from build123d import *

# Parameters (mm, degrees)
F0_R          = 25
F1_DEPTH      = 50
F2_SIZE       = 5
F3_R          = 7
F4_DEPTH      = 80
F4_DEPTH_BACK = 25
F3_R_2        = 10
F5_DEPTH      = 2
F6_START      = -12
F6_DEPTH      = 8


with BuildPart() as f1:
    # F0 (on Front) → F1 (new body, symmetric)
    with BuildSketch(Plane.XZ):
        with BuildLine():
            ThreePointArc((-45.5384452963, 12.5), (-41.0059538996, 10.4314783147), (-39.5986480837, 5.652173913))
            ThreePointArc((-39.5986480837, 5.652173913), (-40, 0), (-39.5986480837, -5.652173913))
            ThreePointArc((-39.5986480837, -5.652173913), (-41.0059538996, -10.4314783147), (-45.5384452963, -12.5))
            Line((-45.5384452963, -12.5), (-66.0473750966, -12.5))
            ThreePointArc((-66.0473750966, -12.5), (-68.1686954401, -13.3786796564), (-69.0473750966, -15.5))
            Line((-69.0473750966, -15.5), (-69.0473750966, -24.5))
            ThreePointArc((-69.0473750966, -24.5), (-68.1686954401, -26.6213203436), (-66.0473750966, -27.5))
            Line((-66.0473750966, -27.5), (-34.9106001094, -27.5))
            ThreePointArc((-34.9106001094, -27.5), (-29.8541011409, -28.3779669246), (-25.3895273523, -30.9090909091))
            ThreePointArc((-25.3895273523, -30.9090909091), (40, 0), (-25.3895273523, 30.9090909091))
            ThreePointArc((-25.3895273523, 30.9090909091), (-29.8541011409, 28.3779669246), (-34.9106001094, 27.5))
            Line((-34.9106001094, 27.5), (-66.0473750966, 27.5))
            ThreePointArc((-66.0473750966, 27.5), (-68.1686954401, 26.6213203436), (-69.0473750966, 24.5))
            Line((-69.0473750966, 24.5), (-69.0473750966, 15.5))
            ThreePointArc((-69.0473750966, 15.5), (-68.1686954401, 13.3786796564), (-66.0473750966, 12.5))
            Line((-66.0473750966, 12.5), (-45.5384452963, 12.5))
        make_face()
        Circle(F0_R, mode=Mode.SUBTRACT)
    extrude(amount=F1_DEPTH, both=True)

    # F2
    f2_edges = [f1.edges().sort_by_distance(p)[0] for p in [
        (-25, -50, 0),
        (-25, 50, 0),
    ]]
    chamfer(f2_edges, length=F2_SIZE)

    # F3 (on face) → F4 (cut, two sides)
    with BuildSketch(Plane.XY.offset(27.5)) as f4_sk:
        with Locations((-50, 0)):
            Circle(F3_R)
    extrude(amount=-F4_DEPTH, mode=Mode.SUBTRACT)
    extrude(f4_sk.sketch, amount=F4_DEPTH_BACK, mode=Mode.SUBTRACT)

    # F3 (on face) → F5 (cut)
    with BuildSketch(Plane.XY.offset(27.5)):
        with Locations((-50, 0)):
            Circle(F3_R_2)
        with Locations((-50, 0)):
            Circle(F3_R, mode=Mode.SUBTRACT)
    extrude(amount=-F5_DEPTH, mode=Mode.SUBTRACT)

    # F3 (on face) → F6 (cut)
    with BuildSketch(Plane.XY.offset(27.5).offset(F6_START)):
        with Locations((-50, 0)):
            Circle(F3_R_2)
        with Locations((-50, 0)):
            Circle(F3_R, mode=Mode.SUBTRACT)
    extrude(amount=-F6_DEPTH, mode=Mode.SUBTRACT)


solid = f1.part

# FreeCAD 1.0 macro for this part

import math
import FreeCAD as App
import Part
import Sketcher
Q = App.Units.Quantity


def edges_at(feature, points):
    """Names of the edges that pass closest to the given points."""
    edges = feature.Shape.Edges
    near = lambda p: min(range(len(edges)), key=lambda i: edges[i].distToShape(Part.Vertex(*p))[0])
    return sorted({f"Edge{near(p) + 1}" for p in points})

doc = App.newDocument("Part")
body = doc.addObject("PartDesign::Body", "Body")

# Sketch on XZ plane
sketch1 = doc.addObject("Sketcher::SketchObject", "Sketch")
body.addObject(sketch1)
sketch1.AttachmentSupport = (doc.XZ_Plane, [""])
sketch1.MapMode = "FlatFace"
sketch1.addGeometry(Part.ArcOfCircle(Part.Circle(App.Vector(-45.5, 6.5, 0), App.Vector(0, 0, 1), 6), math.radians(-8), math.radians(90)), False)
sketch1.addGeometry(Part.ArcOfCircle(Part.Circle(App.Vector(0, 0, 0), App.Vector(0, 0, 1), 40), math.radians(171.88), math.radians(188.12)), False)
sketch1.addGeometry(Part.ArcOfCircle(Part.Circle(App.Vector(-45.5, -6.5, 0), App.Vector(0, 0, 1), 6), math.radians(-90), math.radians(8)), False)
sketch1.addGeometry(Part.LineSegment(App.Vector(-45.5, -12.5, 0), App.Vector(-66, -12.5, 0)), False)
sketch1.addGeometry(Part.ArcOfCircle(Part.Circle(App.Vector(-66, -15.5, 0), App.Vector(0, 0, 1), 3), math.radians(90), math.radians(180)), False)
sketch1.addGeometry(Part.LineSegment(App.Vector(-69, -15.5, 0), App.Vector(-69, -24.5, 0)), False)
sketch1.addGeometry(Part.ArcOfCircle(Part.Circle(App.Vector(-66, -24.5, 0), App.Vector(0, 0, 1), 3), math.radians(180), math.radians(270)), False)
sketch1.addGeometry(Part.LineSegment(App.Vector(-66, -27.5, 0), App.Vector(-34.9, -27.5, 0)), False)
sketch1.addGeometry(Part.ArcOfCircle(Part.Circle(App.Vector(-34.9, -42.5, 0), App.Vector(0, 0, 1), 15), math.radians(51), math.radians(90)), False)
sketch1.addGeometry(Part.ArcOfCircle(Part.Circle(App.Vector(0, 0, 0), App.Vector(0, 0, 1), 40), math.radians(-129), math.radians(129)), False)
sketch1.addGeometry(Part.ArcOfCircle(Part.Circle(App.Vector(-34.9, 42.5, 0), App.Vector(0, 0, 1), 15), math.radians(-90), math.radians(-51)), False)
sketch1.addGeometry(Part.LineSegment(App.Vector(-34.9, 27.5, 0), App.Vector(-66, 27.5, 0)), False)
sketch1.addGeometry(Part.ArcOfCircle(Part.Circle(App.Vector(-66, 24.5, 0), App.Vector(0, 0, 1), 3), math.radians(90), math.radians(180)), False)
sketch1.addGeometry(Part.LineSegment(App.Vector(-69, 24.5, 0), App.Vector(-69, 15.5, 0)), False)
sketch1.addGeometry(Part.ArcOfCircle(Part.Circle(App.Vector(-66, 15.5, 0), App.Vector(0, 0, 1), 3), math.radians(180), math.radians(270)), False)
sketch1.addGeometry(Part.LineSegment(App.Vector(-66, 12.5, 0), App.Vector(-45.5, 12.5, 0)), False)
sketch1.addGeometry(Part.Circle(App.Vector(0, 0, 0), App.Vector(0, 0, 1), 25), False)
sketch1.addConstraint(Sketcher.Constraint("Tangent", 0, 1, 1, 1))
sketch1.addConstraint(Sketcher.Constraint("Tangent", 1, 2, 2, 2))
sketch1.addConstraint(Sketcher.Constraint("Tangent", 2, 1, 3, 1))
sketch1.addConstraint(Sketcher.Constraint("Tangent", 3, 2, 4, 1))
sketch1.addConstraint(Sketcher.Constraint("Tangent", 4, 2, 5, 1))
sketch1.addConstraint(Sketcher.Constraint("Tangent", 5, 2, 6, 1))
sketch1.addConstraint(Sketcher.Constraint("Tangent", 6, 2, 7, 1))
sketch1.addConstraint(Sketcher.Constraint("Tangent", 7, 2, 8, 2))
sketch1.addConstraint(Sketcher.Constraint("Tangent", 8, 1, 9, 1))
sketch1.addConstraint(Sketcher.Constraint("Tangent", 9, 2, 10, 2))
sketch1.addConstraint(Sketcher.Constraint("Tangent", 10, 1, 11, 1))
sketch1.addConstraint(Sketcher.Constraint("Tangent", 11, 2, 12, 1))
sketch1.addConstraint(Sketcher.Constraint("Tangent", 12, 2, 13, 1))
sketch1.addConstraint(Sketcher.Constraint("Tangent", 13, 2, 14, 1))
sketch1.addConstraint(Sketcher.Constraint("Tangent", 14, 2, 15, 1))
sketch1.addConstraint(Sketcher.Constraint("Tangent", 15, 2, 0, 2))
sketch1.addConstraint(Sketcher.Constraint("Horizontal", 3))
sketch1.addConstraint(Sketcher.Constraint("Vertical", 5))
sketch1.addConstraint(Sketcher.Constraint("Horizontal", 7))
sketch1.addConstraint(Sketcher.Constraint("Horizontal", 11))
sketch1.addConstraint(Sketcher.Constraint("Vertical", 13))
sketch1.addConstraint(Sketcher.Constraint("Horizontal", 15))
sketch1.addConstraint(Sketcher.Constraint("Coincident", 1, 3, -1, 1))
sketch1.addConstraint(Sketcher.Constraint("Coincident", 9, 3, -1, 1))
sketch1.addConstraint(Sketcher.Constraint("Coincident", 16, 3, -1, 1))
sketch1.addConstraint(Sketcher.Constraint("Equal", 0, 2))
sketch1.addConstraint(Sketcher.Constraint("Equal", 4, 6))
sketch1.addConstraint(Sketcher.Constraint("Equal", 1, 9))
sketch1.addConstraint(Sketcher.Constraint("Equal", 8, 10))
sketch1.addConstraint(Sketcher.Constraint("Equal", 6, 12))
sketch1.addConstraint(Sketcher.Constraint("Equal", 12, 14))
sketch1.addConstraint(Sketcher.Constraint("Symmetric", 6, 3, 12, 3, -1))
sketch1.addConstraint(Sketcher.Constraint("Vertical", 0, 3, 2, 3))
sketch1.addConstraint(Sketcher.Constraint("Diameter", 16, Q("50 mm")))
sketch1.addConstraint(Sketcher.Constraint("Radius", 0, Q("6 mm")))
sketch1.addConstraint(Sketcher.Constraint("Radius", 1, Q("40 mm")))
sketch1.addConstraint(Sketcher.Constraint("Radius", 4, Q("3 mm")))
sketch1.addConstraint(Sketcher.Constraint("Radius", 8, Q("15 mm")))
sketch1.addConstraint(Sketcher.Constraint("DistanceY", 5, 2, 5, 1, Q("9 mm")))
sketch1.addConstraint(Sketcher.Constraint("DistanceY", 2, 3, 0, 3, Q("13 mm")))
sketch1.addConstraint(Sketcher.Constraint("DistanceX", 3, 2, 3, 1, Q("20.50893 mm")))
pad1 = doc.addObject("PartDesign::Pad", "Pad")
body.addObject(pad1)
pad1.Profile = sketch1
pad1.Length = 100
pad1.Midplane = True
doc.recompute()

chamfer = doc.addObject("PartDesign::Chamfer", "Chamfer")
body.addObject(chamfer)
chamfer.Base = (pad1, edges_at(pad1, [(-25, -50, 0), (-25, 50, 0)]))
chamfer.Size = 5

# Sketch on XY plane
sketch2 = doc.addObject("Sketcher::SketchObject", "Sketch001")
body.addObject(sketch2)
sketch2.AttachmentSupport = (doc.XY_Plane, [""])
sketch2.MapMode = "FlatFace"
sketch2.AttachmentOffset = App.Placement(App.Vector(0, 0, 27.5), App.Rotation())
sketch2.addGeometry(Part.Circle(App.Vector(-50, 0, 0), App.Vector(0, 0, 1), 7), False)
sketch2.addConstraint(Sketcher.Constraint("PointOnObject", 0, 3, -1))
sketch2.addConstraint(Sketcher.Constraint("Diameter", 0, Q("14 mm")))
sketch2.addConstraint(Sketcher.Constraint("DistanceX", 0, 3, -1, 1, Q("50 mm")))
pocket1 = doc.addObject("PartDesign::Pocket", "Pocket")
body.addObject(pocket1)
pocket1.Profile = sketch2
pocket1.Type = "ThroughAll"
pocket1.Midplane = True

# Sketch on XY plane
sketch3 = doc.addObject("Sketcher::SketchObject", "Sketch002")
body.addObject(sketch3)
sketch3.AttachmentSupport = (doc.XY_Plane, [""])
sketch3.MapMode = "FlatFace"
sketch3.AttachmentOffset = App.Placement(App.Vector(0, 0, 27.5), App.Rotation())
sketch3.addGeometry(Part.Circle(App.Vector(-50, 0, 0), App.Vector(0, 0, 1), 10), False)
sketch3.addGeometry(Part.Circle(App.Vector(-50, 0, 0), App.Vector(0, 0, 1), 7), False)
sketch3.addConstraint(Sketcher.Constraint("Coincident", 1, 3, 0, 3))
sketch3.addConstraint(Sketcher.Constraint("PointOnObject", 0, 3, -1))
sketch3.addConstraint(Sketcher.Constraint("Diameter", 0, Q("20 mm")))
sketch3.addConstraint(Sketcher.Constraint("Diameter", 1, Q("14 mm")))
sketch3.addConstraint(Sketcher.Constraint("DistanceX", 0, 3, -1, 1, Q("50 mm")))
pocket2 = doc.addObject("PartDesign::Pocket", "Pocket001")
body.addObject(pocket2)
pocket2.Profile = sketch3
pocket2.Length = 2

# Sketch on XY plane
sketch4 = doc.addObject("Sketcher::SketchObject", "Sketch003")
body.addObject(sketch4)
sketch4.AttachmentSupport = (doc.XY_Plane, [""])
sketch4.MapMode = "FlatFace"
sketch4.AttachmentOffset = App.Placement(App.Vector(0, 0, 15.5), App.Rotation())
sketch4.addGeometry(Part.Circle(App.Vector(-50, 0, 0), App.Vector(0, 0, 1), 10), False)
sketch4.addGeometry(Part.Circle(App.Vector(-50, 0, 0), App.Vector(0, 0, 1), 7), False)
sketch4.addConstraint(Sketcher.Constraint("Coincident", 1, 3, 0, 3))
sketch4.addConstraint(Sketcher.Constraint("PointOnObject", 0, 3, -1))
sketch4.addConstraint(Sketcher.Constraint("Diameter", 0, Q("20 mm")))
sketch4.addConstraint(Sketcher.Constraint("Diameter", 1, Q("14 mm")))
sketch4.addConstraint(Sketcher.Constraint("DistanceX", 0, 3, -1, 1, Q("50 mm")))
pocket3 = doc.addObject("PartDesign::Pocket", "Pocket002")
body.addObject(pocket3)
pocket3.Profile = sketch4
pocket3.Length = 8

doc.recompute()
